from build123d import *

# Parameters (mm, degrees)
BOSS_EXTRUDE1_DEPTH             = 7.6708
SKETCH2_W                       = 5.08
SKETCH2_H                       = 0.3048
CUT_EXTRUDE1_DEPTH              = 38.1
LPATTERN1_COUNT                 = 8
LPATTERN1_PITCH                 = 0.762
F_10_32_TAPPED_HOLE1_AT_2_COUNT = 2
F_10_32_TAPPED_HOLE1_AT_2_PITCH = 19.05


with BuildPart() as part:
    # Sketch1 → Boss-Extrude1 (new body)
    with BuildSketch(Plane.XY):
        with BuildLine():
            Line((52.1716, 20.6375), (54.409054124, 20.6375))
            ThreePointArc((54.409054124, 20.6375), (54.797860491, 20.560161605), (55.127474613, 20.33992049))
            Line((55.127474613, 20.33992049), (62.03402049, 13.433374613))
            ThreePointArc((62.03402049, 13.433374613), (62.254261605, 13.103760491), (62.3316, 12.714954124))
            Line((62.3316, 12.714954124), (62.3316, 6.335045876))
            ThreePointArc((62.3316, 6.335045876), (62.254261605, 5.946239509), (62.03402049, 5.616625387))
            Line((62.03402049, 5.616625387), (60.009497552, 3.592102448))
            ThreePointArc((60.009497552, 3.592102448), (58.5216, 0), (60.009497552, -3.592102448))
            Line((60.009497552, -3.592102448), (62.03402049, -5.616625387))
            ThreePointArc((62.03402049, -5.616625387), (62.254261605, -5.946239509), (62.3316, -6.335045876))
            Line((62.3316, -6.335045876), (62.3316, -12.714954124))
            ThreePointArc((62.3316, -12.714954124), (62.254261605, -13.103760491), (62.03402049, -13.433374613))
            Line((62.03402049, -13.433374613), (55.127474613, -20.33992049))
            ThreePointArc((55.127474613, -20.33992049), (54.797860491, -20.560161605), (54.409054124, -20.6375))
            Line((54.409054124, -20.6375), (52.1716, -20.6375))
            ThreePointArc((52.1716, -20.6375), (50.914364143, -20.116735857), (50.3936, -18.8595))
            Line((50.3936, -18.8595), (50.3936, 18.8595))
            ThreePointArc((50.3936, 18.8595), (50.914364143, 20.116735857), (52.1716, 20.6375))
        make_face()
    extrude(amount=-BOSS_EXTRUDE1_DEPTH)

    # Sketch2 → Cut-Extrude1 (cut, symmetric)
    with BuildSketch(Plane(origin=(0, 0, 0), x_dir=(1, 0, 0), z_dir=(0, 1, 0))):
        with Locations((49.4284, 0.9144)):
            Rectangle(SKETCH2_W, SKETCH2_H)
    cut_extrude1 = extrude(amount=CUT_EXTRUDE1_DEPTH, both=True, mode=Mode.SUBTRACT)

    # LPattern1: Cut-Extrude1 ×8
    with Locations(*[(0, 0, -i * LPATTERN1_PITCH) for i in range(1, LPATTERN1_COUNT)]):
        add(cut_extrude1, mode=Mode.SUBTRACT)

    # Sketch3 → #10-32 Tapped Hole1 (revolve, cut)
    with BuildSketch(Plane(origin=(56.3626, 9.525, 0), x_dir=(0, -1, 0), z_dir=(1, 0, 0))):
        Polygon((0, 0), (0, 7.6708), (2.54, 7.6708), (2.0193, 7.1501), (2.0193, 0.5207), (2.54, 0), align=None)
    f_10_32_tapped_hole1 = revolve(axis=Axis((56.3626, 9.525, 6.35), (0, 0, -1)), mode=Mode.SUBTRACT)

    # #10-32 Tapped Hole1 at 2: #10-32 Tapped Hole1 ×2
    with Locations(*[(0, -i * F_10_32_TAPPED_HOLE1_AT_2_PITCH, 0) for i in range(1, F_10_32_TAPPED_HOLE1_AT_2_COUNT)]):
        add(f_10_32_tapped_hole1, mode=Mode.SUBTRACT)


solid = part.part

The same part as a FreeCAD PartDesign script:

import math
import FreeCAD as App
import Part
import Sketcher
from FreeCAD import Vector
Q = App.Units.Quantity


def add_polygon(sketch, points):
    """Adds a closed chain of lines whose ends are joined by coincident constraints."""
    first, n = sketch.GeometryCount, len(points)
    for a, b in zip(points, points[1:] + points[:1]):
        sketch.addGeometry(Part.LineSegment(App.Vector(*a, 0), App.Vector(*b, 0)), False)
    for i in range(n):
        sketch.addConstraint(Sketcher.Constraint("Coincident", first + i, 2, first + (i + 1) % n, 1))

doc = App.newDocument("Part")
body = doc.addObject("PartDesign::Body", "Body")

sketch1 = body.newObject("Sketcher::SketchObject", "Sketch")
sketch1.AttachmentSupport = (doc.getObject("XY_Plane"), [""])
sketch1.MapMode = "FlatFace"
sketch1.addGeometry(Part.LineSegment(Vector(54.409054, 20.6375, 0), Vector(52.1716, 20.6375, 0)), False)
sketch1.addGeometry(Part.ArcOfCircle(Part.Circle(Vector(52.1716, 18.8595, 0), Vector(0, 0, 1), 1.778), math.radians(90), math.radians(180)), False)
sketch1.addGeometry(Part.LineSegment(Vector(50.3936, 18.8595, 0), Vector(50.3936, -18.8595, 0)), False)
sketch1.addGeometry(Part.ArcOfCircle(Part.Circle(Vector(52.1716, -18.8595, 0), Vector(0, 0, 1), 1.778), math.radians(180), math.radians(270)), False)
sketch1.addGeometry(Part.LineSegment(Vector(52.1716, -20.6375, 0), Vector(54.409054, -20.6375, 0)), False)
sketch1.addGeometry(Part.ArcOfCircle(Part.Circle(Vector(54.409054, -19.6215, 0), Vector(0, 0, 1), 1.016), math.radians(-90), math.radians(-45)), False)
sketch1.addGeometry(Part.LineSegment(Vector(55.127475, -20.33992, 0), Vector(62.03402, -13.433375, 0)), False)
sketch1.addGeometry(Part.ArcOfCircle(Part.Circle(Vector(61.3156, -12.714954, 0), Vector(0, 0, 1), 1.016), math.radians(-45), math.radians(0)), False)
sketch1.addGeometry(Part.LineSegment(Vector(62.3316, -12.714954, 0), Vector(62.3316, -6.335046, 0)), False)
sketch1.addGeometry(Part.ArcOfCircle(Part.Circle(Vector(61.3156, -6.335046, 0), Vector(0, 0, 1), 1.016), math.radians(0), math.radians(45)), False)
sketch1.addGeometry(Part.LineSegment(Vector(62.03402, -5.616625, 0), Vector(60.009498, -3.592102, 0)), False)
sketch1.addGeometry(Part.ArcOfCircle(Part.Circle(Vector(63.6016, 0, 0), Vector(0, 0, 1), 5.08), math.radians(135), math.radians(225)), False)
sketch1.addGeometry(Part.LineSegment(Vector(60.009498, 3.592102, 0), Vector(62.03402, 5.616625, 0)), False)
sketch1.addGeometry(Part.ArcOfCircle(Part.Circle(Vector(61.3156, 6.335046, 0), Vector(0, 0, 1), 1.016), math.radians(-45), math.radians(0)), False)
sketch1.addGeometry(Part.LineSegment(Vector(62.3316, 6.335046, 0), Vector(62.3316, 12.714954, 0)), False)
sketch1.addGeometry(Part.ArcOfCircle(Part.Circle(Vector(61.3156, 12.714954, 0), Vector(0, 0, 1), 1.016), math.radians(0), math.radians(45)), False)
sketch1.addGeometry(Part.LineSegment(Vector(62.03402, 13.433375, 0), Vector(55.127475, 20.33992, 0)), False)
sketch1.addGeometry(Part.ArcOfCircle(Part.Circle(Vector(54.409054, 19.6215, 0), Vector(0, 0, 1), 1.016), math.radians(45), math.radians(90)), False)
sketch1.addConstraint(Sketcher.Constraint("Tangent", 0, 2, 1, 1))
sketch1.addConstraint(Sketcher.Constraint("Tangent", 1, 2, 2, 1))
sketch1.addConstraint(Sketcher.Constraint("Tangent", 2, 2, 3, 1))
sketch1.addConstraint(Sketcher.Constraint("Tangent", 3, 2, 4, 1))
sketch1.addConstraint(Sketcher.Constraint("Tangent", 4, 2, 5, 1))
sketch1.addConstraint(Sketcher.Constraint("Tangent", 5, 2, 6, 1))
sketch1.addConstraint(Sketcher.Constraint("Tangent", 6, 2, 7, 1))
sketch1.addConstraint(Sketcher.Constraint("Tangent", 7, 2, 8, 1))
sketch1.addConstraint(Sketcher.Constraint("Tangent", 8, 2, 9, 1))
sketch1.addConstraint(Sketcher.Constraint("Tangent", 9, 2, 10, 1))
sketch1.addConstraint(Sketcher.Constraint("Tangent", 10, 2, 11, 2))
sketch1.addConstraint(Sketcher.Constraint("Tangent", 11, 1, 12, 1))
sketch1.addConstraint(Sketcher.Constraint("Tangent", 12, 2, 13, 1))
sketch1.addConstraint(Sketcher.Constraint("Tangent", 13, 2, 14, 1))
sketch1.addConstraint(Sketcher.Constraint("Tangent", 14, 2, 15, 1))
sketch1.addConstraint(Sketcher.Constraint("Tangent", 15, 2, 16, 1))
sketch1.addConstraint(Sketcher.Constraint("Tangent", 16, 2, 17, 1))
sketch1.addConstraint(Sketcher.Constraint("Tangent", 17, 2, 0, 1))
sketch1.addConstraint(Sketcher.Constraint("Horizontal", 0))
sketch1.addConstraint(Sketcher.Constraint("Vertical", 2))
sketch1.addConstraint(Sketcher.Constraint("Horizontal", 4))
sketch1.addConstraint(Sketcher.Constraint("Vertical", 8))
sketch1.addConstraint(Sketcher.Constraint("Vertical", 14))
sketch1.addConstraint(Sketcher.Constraint("Equal", 1, 3))
sketch1.addConstraint(Sketcher.Constraint("Equal", 5, 7))
sketch1.addConstraint(Sketcher.Constraint("Equal", 7, 9))
sketch1.addConstraint(Sketcher.Constraint("Equal", 9, 13))
sketch1.addConstraint(Sketcher.Constraint("Equal", 13, 15))
sketch1.addConstraint(Sketcher.Constraint("Equal", 15, 17))
sketch1.addConstraint(Sketcher.Constraint("Symmetric", 9, 3, 13, 3, -1))
sketch1.addConstraint(Sketcher.Constraint("Symmetric", 5, 3, 17, 3, -1))
sketch1.addConstraint(Sketcher.Constraint("PointOnObject", 11, 3, -1))
sketch1.addConstraint(Sketcher.Constraint("Perpendicular", 6, 10))
sketch1.addConstraint(Sketcher.Constraint("Perpendicular", 10, 12))
sketch1.addConstraint(Sketcher.Constraint("Perpendicular", 12, 16))
sketch1.addConstraint(Sketcher.Constraint("Radius", 11, Q("0.2 in")))
sketch1.addConstraint(Sketcher.Constraint("Radius", 1, Q("0.07 in")))
sketch1.addConstraint(Sketcher.Constraint("Radius", 5, Q("0.04 in")))
sketch1.addConstraint(Sketcher.Constraint("DistanceY", 2, 2, 2, 1, Q("1.485 in")))
sketch1.addConstraint(Sketcher.Constraint("DistanceX", 3, 3, 7, 3, Q("0.36 in")))
sketch1.addConstraint(Sketcher.Constraint("DistanceX", 9, 3, 11, 3, Q("0.09 in")))
sketch1.addConstraint(Sketcher.Constraint("DistanceY", 7, 3, 13, 3, Q("0.75 in")))
sketch1.addConstraint(Sketcher.Constraint("DistanceX", -1, 1, 1, 3, Q("2.054 in")))
pad1 = body.newObject("PartDesign::Pad", "Pad")
pad1.Profile = sketch1
pad1.Length = Q("0.302 in")
pad1.Reversed = True

sketch2 = body.newObject("Sketcher::SketchObject", "Sketch001")
sketch2.AttachmentSupport = (doc.getObject("XZ_Plane"), [""])
sketch2.MapMode = "FlatFace"
add_polygon(sketch2, [(46.8884, -1.0668), (46.8884, -0.762), (51.9684, -0.762), (51.9684, -1.0668)])
sketch2.addConstraint(Sketcher.Constraint("Vertical", 0))
sketch2.addConstraint(Sketcher.Constraint("Horizontal", 1))
sketch2.addConstraint(Sketcher.Constraint("Vertical", 2))
sketch2.addConstraint(Sketcher.Constraint("Horizontal", 3))
sketch2.addConstraint(Sketcher.Constraint("DistanceX", 1, 1, 1, 2, Q("0.2 in")))
sketch2.addConstraint(Sketcher.Constraint("DistanceY", 0, 1, 0, 2, Q("0.012 in")))
sketch2.addConstraint(Sketcher.Constraint("DistanceY", 0, 2, -1, 1, Q("0.03 in")))
sketch2.addConstraint(Sketcher.Constraint("DistanceX", -1, 1, 0, 2, Q("1.846 in")))
pocket1 = body.newObject("PartDesign::Pocket", "Pocket")
pocket1.Profile = sketch2
pocket1.Length = Q("3 in")
pocket1.Midplane = True
doc.recompute()

linearpattern = body.newObject("PartDesign::LinearPattern", "LinearPattern")
linearpattern.Originals = [pocket1]
linearpattern.Direction = (doc.getObject("Z_Axis"), [""])
linearpattern.Mode = "offset"
linearpattern.Offset = Q("0.03 in")
linearpattern.Occurrences = 8
linearpattern.Reversed = True
body.Tip = linearpattern

sketch3 = body.newObject("Sketcher::SketchObject", "Sketch002")
sketch3.AttachmentSupport = (doc.getObject("YZ_Plane"), [""])
sketch3.MapMode = "FlatFace"
sketch3.AttachmentOffset = App.Placement(Vector(0, 0, 2.219 * 25.4), App.Rotation())
add_polygon(sketch3, [(9.525, -7.6708), (9.525, 0), (6.985, 0), (7.5057, -0.5207), (7.5057, -7.1501), (6.985, -7.6708)])
sketch3.addGeometry(Part.LineSegment(Vector(9.525, 0, 0), Vector(9.525, -7.6708, 0)), True)
sketch3.addConstraint(Sketcher.Constraint("Vertical", 0))
sketch3.addConstraint(Sketcher.Constraint("Horizontal", 1))
sketch3.addConstraint(Sketcher.Constraint("Vertical", 3))
sketch3.addConstraint(Sketcher.Constraint("Horizontal", 5))
sketch3.addConstraint(Sketcher.Constraint("Vertical", 6))
sketch3.addConstraint(Sketcher.Constraint("Coincident", 6, 1, 0, 2))
sketch3.addConstraint(Sketcher.Constraint("PointOnObject", 0, 2, -1))
sketch3.addConstraint(Sketcher.Constraint("Perpendicular", 2, 4))
sketch3.addConstraint(Sketcher.Constraint("Horizontal", 4, 2, 6, 2))
sketch3.addConstraint(Sketcher.Constraint("Vertical", 1, 2, 4, 2))
sketch3.addConstraint(Sketcher.Constraint("Equal", 2, 4))
sketch3.addConstraint(Sketcher.Constraint("DistanceX", 1, 2, 1, 1, Q("0.1 in")))
sketch3.addConstraint(Sketcher.Constraint("DistanceY", 0, 1, 0, 2, Q("0.302 in")))
sketch3.addConstraint(Sketcher.Constraint("DistanceY", 3, 2, 3, 1, Q("0.261 in")))
sketch3.addConstraint(Sketcher.Constraint("DistanceX", -1, 1, 0, 2, Q("0.375 in")))
groove = body.newObject("PartDesign::Groove", "Groove")
groove.Profile = sketch3
groove.ReferenceAxis = (sketch3, ["Axis0"])
groove.Angle = 360
doc.recompute()

linearpattern2 = body.newObject("PartDesign::LinearPattern", "LinearPattern001")
linearpattern2.Originals = [groove]
linearpattern2.Direction = (doc.getObject("Y_Axis"), [""])
linearpattern2.Mode = "offset"
linearpattern2.Offset = Q("0.75 in")
linearpattern2.Occurrences = 2
linearpattern2.Reversed = True
body.Tip = linearpattern2

doc.recompute()
